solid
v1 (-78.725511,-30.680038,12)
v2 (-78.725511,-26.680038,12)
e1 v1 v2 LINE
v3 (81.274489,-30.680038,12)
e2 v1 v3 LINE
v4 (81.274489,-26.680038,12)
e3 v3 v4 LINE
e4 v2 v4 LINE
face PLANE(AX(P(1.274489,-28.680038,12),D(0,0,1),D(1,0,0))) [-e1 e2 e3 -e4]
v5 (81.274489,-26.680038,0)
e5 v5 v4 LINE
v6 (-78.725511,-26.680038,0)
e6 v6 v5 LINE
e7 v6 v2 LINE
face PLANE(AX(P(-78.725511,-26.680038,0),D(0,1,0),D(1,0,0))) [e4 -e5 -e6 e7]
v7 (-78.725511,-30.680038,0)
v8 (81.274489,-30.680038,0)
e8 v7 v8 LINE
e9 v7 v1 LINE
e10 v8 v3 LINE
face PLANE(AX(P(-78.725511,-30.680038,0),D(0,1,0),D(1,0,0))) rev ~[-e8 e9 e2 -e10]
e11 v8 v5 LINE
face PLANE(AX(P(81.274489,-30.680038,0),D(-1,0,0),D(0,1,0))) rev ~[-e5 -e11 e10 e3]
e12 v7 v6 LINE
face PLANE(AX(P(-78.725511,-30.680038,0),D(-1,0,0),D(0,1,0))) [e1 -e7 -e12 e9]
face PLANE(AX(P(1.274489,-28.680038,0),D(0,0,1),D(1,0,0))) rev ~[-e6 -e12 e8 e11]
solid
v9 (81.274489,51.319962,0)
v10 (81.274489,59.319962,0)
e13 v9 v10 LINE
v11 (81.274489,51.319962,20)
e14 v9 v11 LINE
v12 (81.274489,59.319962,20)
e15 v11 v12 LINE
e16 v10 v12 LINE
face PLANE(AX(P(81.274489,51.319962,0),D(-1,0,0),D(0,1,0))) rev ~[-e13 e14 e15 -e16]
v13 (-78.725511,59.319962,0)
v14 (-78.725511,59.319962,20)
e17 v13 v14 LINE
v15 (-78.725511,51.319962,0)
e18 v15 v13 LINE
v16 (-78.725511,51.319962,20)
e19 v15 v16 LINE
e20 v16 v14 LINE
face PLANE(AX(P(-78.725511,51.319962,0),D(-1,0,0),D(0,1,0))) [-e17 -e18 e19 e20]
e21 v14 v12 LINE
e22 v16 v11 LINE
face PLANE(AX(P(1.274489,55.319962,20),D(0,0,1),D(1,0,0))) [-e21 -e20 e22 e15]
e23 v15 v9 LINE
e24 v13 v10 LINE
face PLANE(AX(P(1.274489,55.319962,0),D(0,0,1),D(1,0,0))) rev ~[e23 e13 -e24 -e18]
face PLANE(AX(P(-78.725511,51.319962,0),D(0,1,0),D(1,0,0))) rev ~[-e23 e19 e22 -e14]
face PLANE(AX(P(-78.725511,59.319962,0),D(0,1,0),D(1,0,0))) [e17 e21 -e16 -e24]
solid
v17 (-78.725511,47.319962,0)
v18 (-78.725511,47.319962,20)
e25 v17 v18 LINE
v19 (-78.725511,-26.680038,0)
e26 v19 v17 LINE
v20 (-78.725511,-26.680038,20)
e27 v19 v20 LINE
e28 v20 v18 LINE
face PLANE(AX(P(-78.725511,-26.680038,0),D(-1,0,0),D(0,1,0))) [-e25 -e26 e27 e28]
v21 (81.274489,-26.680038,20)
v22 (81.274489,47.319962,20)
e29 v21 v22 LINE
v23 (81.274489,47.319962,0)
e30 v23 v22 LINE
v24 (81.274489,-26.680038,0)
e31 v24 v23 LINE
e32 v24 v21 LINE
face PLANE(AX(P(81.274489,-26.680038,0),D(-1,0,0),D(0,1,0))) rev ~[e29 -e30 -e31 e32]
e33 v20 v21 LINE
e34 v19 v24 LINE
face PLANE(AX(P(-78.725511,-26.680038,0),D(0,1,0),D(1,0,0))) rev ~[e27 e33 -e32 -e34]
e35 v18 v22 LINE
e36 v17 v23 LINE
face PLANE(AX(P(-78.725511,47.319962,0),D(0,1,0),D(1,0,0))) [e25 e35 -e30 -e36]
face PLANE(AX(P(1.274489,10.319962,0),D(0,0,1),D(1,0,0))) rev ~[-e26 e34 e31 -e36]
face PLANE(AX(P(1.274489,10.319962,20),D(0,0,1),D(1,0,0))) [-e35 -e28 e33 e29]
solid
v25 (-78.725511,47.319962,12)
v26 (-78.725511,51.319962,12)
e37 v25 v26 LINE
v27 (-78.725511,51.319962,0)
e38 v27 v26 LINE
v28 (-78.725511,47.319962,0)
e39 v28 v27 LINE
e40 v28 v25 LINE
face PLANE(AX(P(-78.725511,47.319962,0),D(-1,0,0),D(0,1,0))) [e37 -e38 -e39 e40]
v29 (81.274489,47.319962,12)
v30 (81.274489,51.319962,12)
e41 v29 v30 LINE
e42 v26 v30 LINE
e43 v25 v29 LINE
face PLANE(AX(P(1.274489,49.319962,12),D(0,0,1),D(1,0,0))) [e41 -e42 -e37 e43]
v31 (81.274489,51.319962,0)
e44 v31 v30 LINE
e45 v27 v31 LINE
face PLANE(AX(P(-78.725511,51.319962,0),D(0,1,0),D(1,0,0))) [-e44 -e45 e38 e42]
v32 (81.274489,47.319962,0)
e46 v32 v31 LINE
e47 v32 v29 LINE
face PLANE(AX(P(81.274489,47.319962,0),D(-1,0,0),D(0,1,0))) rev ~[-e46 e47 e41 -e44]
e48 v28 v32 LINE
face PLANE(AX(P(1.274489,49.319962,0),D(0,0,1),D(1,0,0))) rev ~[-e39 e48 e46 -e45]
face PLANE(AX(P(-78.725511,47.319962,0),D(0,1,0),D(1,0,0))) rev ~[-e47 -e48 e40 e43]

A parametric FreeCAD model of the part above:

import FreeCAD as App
import Part
import Sketcher


def add_polygon(sketch, points):
    """Adds a closed chain of lines whose ends are joined by coincident constraints."""
    first, n = sketch.GeometryCount, len(points)
    for a, b in zip(points, points[1:] + points[:1]):
        sketch.addGeometry(Part.LineSegment(App.Vector(*a, 0), App.Vector(*b, 0)), False)
    for i in range(n):
        sketch.addConstraint(Sketcher.Constraint("Coincident", first + i, 2, first + (i + 1) % n, 1))

doc = App.newDocument("Part")
body = doc.addObject("PartDesign::Body", "Body")
body.AllowCompound = True

sketch1 = doc.addObject("Sketcher::SketchObject", "Sketch")
body.addObject(sketch1)
sketch1.AttachmentSupport = (doc.XY_Plane, [""])
sketch1.MapMode = "FlatFace"
add_polygon(sketch1, [(-78.725511, 59.319962), (-78.725511, 51.319962), (81.274489, 51.319962), (81.274489, 59.319962)])
add_polygon(sketch1, [(-78.725511, 47.319962), (-78.725511, -26.680038), (81.274489, -26.680038), (81.274489, 47.319962)])
sketch1.addConstraint([
    Sketcher.Constraint("Vertical", 0),
    Sketcher.Constraint("Horizontal", 1),
    Sketcher.Constraint("Vertical", 2),
    Sketcher.Constraint("Horizontal", 3),
    Sketcher.Constraint("Vertical", 4),
    Sketcher.Constraint("Horizontal", 5),
    Sketcher.Constraint("Vertical", 6),
    Sketcher.Constraint("Horizontal", 7),
    Sketcher.Constraint("Vertical", 3, 2, 4, 2),
    Sketcher.Constraint("Vertical", 2, 2, 5, 2),
    Sketcher.Constraint("DistanceX", 1, 1, 1, 2, 160.0),
    Sketcher.Constraint("DistanceY", 0, 2, 0, 1, 8.0),
    Sketcher.Constraint("DistanceY", 4, 2, 4, 1, 74.0),
    Sketcher.Constraint("DistanceY", 4, 2, 0, 2, 78.0),
    Sketcher.Constraint("DistanceX", 0, 2, -1, 1, 78.725511),
    Sketcher.Constraint("DistanceY", -1, 1, 0, 2, 51.319962),
])
pad1 = doc.addObject("PartDesign::Pad", "Pad")
body.addObject(pad1)
pad1.Profile = sketch1
pad1.Length = 20
body2 = doc.addObject("PartDesign::Body", "Body001")
body2.AllowCompound = True

sketch2 = doc.addObject("Sketcher::SketchObject", "Sketch001")
body2.addObject(sketch2)
sketch2.AttachmentSupport = (doc.getObject("XY_Plane001"), [""])
sketch2.MapMode = "FlatFace"
add_polygon(sketch2, [(-78.725511, 51.319962), (-78.725511, 47.319962), (81.274489, 47.319962), (81.274489, 51.319962)])
add_polygon(sketch2, [(-78.725511, -26.680038), (-78.725511, -30.680038), (81.274489, -30.680038), (81.274489, -26.680038)])
sketch2.addConstraint([
    Sketcher.Constraint("Vertical", 0),
    Sketcher.Constraint("Horizontal", 1),
    Sketcher.Constraint("Vertical", 2),
    Sketcher.Constraint("Horizontal", 3),
    Sketcher.Constraint("Vertical", 4),
    Sketcher.Constraint("Horizontal", 5),
    Sketcher.Constraint("Vertical", 6),
    Sketcher.Constraint("Horizontal", 7),
    Sketcher.Constraint("Vertical", 3, 2, 4, 2),
    Sketcher.Constraint("Vertical", 2, 2, 5, 2),
    Sketcher.Constraint("Equal", 2, 4),
    Sketcher.Constraint("DistanceX", 1, 1, 1, 2, 160.0),
    Sketcher.Constraint("DistanceY", 0, 2, 0, 1, 4.0),
    Sketcher.Constraint("DistanceY", 4, 2, 0, 2, 78.0),
    Sketcher.Constraint("DistanceX", 0, 2, -1, 1, 78.725511),
    Sketcher.Constraint("DistanceY", -1, 1, 0, 2, 47.319962),
])
pad2 = doc.addObject("PartDesign::Pad", "Pad001")
body2.addObject(pad2)
pad2.Profile = sketch2
pad2.Length = 12

doc.recompute()
